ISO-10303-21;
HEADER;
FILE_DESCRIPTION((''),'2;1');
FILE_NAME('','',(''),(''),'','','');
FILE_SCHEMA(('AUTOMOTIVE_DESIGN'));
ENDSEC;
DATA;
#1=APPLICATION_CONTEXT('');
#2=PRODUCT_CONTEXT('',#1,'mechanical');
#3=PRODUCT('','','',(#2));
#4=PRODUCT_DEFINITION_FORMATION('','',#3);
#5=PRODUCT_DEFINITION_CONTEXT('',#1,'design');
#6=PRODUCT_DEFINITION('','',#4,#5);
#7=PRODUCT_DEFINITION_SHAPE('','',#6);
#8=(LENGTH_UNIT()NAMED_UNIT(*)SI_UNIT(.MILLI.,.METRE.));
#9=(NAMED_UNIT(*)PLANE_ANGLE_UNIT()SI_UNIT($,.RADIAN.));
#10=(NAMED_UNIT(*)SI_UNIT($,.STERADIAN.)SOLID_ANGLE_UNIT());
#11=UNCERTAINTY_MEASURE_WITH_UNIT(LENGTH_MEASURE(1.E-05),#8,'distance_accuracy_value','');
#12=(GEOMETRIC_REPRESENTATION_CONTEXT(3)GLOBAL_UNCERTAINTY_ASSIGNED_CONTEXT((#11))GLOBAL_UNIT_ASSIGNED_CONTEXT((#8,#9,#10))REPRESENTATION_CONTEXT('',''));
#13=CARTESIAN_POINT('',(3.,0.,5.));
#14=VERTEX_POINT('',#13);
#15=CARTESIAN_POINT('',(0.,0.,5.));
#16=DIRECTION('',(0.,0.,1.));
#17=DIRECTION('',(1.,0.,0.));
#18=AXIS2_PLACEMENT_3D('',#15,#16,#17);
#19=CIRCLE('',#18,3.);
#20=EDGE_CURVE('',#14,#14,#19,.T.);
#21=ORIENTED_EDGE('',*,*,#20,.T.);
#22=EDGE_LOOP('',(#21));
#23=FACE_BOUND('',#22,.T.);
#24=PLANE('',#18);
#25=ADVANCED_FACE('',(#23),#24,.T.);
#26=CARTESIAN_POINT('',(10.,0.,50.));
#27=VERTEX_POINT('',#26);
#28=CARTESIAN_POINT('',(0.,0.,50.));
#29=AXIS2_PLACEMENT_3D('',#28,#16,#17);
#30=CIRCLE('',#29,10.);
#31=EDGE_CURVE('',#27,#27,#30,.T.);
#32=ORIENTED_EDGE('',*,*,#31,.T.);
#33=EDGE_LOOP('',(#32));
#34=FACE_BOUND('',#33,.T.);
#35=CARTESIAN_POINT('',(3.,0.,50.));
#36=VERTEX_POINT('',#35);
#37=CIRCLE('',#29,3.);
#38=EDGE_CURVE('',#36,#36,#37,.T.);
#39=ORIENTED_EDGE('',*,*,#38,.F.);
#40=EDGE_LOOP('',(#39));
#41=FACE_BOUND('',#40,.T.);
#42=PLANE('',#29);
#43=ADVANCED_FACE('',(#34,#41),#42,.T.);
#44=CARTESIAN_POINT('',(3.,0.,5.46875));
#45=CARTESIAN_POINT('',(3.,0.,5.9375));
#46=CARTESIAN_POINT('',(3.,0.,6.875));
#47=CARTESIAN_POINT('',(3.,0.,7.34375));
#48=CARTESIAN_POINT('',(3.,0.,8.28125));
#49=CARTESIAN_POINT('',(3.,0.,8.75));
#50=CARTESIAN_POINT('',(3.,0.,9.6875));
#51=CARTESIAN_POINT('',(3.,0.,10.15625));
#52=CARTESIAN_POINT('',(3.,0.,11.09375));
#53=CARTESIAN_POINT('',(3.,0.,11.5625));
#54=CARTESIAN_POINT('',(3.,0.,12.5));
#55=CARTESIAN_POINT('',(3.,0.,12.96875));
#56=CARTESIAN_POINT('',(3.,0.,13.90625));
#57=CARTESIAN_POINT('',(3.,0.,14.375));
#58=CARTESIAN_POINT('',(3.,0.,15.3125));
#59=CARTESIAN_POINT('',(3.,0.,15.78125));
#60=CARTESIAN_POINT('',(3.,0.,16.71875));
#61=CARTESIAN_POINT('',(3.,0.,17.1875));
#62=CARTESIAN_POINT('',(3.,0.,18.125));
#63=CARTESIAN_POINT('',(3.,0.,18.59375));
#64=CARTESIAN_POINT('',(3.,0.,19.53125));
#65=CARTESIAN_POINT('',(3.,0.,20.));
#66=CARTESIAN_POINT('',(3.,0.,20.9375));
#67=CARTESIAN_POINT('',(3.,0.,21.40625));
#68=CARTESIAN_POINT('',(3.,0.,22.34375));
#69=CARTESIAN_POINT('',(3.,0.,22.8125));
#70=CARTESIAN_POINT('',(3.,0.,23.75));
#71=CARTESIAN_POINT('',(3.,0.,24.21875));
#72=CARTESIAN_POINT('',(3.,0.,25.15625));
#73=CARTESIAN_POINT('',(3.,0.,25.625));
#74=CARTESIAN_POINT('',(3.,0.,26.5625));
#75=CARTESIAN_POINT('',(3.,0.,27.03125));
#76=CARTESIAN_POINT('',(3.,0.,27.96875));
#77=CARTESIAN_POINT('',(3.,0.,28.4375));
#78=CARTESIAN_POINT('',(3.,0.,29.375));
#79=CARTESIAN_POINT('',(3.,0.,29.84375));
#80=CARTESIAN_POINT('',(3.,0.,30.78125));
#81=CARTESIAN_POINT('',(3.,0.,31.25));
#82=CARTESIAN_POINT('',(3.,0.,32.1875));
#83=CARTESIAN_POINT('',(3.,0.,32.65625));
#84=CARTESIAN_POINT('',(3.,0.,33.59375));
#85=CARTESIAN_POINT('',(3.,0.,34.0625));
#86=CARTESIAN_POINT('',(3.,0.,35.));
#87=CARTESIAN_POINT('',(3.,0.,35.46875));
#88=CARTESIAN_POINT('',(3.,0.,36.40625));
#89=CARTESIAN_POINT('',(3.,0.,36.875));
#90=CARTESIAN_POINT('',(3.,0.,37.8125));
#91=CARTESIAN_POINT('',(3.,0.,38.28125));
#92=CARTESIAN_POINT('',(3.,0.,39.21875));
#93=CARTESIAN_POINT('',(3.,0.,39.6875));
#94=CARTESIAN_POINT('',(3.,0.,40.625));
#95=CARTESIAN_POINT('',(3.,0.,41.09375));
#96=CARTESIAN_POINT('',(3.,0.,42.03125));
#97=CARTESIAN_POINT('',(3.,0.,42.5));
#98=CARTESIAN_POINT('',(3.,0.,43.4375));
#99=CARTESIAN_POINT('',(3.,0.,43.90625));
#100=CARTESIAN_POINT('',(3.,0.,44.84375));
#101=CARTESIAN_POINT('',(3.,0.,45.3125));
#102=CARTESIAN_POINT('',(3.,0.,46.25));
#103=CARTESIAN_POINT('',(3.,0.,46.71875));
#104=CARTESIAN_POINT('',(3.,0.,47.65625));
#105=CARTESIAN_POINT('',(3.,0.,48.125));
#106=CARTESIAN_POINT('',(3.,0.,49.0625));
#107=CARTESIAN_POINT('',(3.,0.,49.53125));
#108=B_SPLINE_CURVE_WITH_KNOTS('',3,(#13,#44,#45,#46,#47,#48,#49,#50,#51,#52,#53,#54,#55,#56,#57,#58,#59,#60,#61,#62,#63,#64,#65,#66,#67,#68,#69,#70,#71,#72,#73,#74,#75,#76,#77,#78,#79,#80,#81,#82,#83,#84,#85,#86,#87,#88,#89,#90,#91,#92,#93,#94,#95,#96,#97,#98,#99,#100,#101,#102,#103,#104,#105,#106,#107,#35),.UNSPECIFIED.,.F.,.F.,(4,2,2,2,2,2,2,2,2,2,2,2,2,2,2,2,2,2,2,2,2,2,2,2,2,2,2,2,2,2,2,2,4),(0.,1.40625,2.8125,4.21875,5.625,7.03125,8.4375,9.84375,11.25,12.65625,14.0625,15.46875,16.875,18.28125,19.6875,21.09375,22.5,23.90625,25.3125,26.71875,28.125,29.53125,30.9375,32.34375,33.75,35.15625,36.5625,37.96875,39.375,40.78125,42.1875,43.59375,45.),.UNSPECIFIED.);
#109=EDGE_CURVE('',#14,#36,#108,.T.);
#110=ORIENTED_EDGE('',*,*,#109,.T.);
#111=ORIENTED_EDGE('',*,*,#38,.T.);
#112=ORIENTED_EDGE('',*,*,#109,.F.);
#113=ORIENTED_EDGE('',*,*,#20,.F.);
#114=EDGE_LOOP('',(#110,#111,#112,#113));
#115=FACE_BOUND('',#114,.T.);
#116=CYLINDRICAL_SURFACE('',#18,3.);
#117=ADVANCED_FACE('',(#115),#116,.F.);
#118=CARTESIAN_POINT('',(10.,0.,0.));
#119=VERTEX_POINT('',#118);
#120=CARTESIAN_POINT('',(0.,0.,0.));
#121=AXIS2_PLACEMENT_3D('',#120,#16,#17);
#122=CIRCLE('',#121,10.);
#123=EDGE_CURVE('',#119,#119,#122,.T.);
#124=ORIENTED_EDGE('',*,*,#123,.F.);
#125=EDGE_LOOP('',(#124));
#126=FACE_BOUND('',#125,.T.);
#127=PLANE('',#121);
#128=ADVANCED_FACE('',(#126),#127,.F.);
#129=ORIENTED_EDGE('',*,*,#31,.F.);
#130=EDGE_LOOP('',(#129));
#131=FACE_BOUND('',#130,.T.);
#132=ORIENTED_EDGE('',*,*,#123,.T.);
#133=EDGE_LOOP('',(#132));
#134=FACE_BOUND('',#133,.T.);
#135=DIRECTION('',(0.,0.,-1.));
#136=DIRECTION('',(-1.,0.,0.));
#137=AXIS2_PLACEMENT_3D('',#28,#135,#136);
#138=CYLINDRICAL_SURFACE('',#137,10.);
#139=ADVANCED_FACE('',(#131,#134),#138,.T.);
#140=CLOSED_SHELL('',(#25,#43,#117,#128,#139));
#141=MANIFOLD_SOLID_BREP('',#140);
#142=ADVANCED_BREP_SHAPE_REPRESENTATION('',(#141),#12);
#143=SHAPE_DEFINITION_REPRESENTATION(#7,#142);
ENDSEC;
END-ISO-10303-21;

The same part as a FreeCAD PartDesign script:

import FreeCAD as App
import Part
import Sketcher
Q = App.Units.Quantity

doc = App.newDocument("Part")
body = doc.addObject("PartDesign::Body", "Body")

# Sketch on XY plane
sketch1 = doc.addObject("Sketcher::SketchObject", "Sketch")
body.addObject(sketch1)
sketch1.AttachmentSupport = (doc.XY_Plane, [""])
sketch1.MapMode = "FlatFace"
sketch1.addGeometry(Part.Circle(App.Vector(0, 0, 0), App.Vector(0, 0, 1), 10), False)
sketch1.addConstraint(Sketcher.Constraint("Coincident", 0, 3, -1, 1))
sketch1.addConstraint(Sketcher.Constraint("Diameter", 0, Q("20 mm")))
pad1 = doc.addObject("PartDesign::Pad", "Pad")
body.addObject(pad1)
pad1.Profile = sketch1
pad1.Length = 50

# Sketch on XY plane
sketch2 = doc.addObject("Sketcher::SketchObject", "Sketch001")
body.addObject(sketch2)
sketch2.AttachmentSupport = (doc.XY_Plane, [""])
sketch2.MapMode = "FlatFace"
sketch2.AttachmentOffset = App.Placement(App.Vector(0, 0, 50), App.Rotation())
sketch2.addGeometry(Part.Circle(App.Vector(0, 0, 0), App.Vector(0, 0, 1), 3), False)
sketch2.addConstraint(Sketcher.Constraint("Coincident", 0, 3, -1, 1))
sketch2.addConstraint(Sketcher.Constraint("Diameter", 0, Q("6 mm")))
pocket1 = doc.addObject("PartDesign::Pocket", "Pocket")
body.addObject(pocket1)
pocket1.Profile = sketch2
pocket1.Length = 45

doc.recompute()
